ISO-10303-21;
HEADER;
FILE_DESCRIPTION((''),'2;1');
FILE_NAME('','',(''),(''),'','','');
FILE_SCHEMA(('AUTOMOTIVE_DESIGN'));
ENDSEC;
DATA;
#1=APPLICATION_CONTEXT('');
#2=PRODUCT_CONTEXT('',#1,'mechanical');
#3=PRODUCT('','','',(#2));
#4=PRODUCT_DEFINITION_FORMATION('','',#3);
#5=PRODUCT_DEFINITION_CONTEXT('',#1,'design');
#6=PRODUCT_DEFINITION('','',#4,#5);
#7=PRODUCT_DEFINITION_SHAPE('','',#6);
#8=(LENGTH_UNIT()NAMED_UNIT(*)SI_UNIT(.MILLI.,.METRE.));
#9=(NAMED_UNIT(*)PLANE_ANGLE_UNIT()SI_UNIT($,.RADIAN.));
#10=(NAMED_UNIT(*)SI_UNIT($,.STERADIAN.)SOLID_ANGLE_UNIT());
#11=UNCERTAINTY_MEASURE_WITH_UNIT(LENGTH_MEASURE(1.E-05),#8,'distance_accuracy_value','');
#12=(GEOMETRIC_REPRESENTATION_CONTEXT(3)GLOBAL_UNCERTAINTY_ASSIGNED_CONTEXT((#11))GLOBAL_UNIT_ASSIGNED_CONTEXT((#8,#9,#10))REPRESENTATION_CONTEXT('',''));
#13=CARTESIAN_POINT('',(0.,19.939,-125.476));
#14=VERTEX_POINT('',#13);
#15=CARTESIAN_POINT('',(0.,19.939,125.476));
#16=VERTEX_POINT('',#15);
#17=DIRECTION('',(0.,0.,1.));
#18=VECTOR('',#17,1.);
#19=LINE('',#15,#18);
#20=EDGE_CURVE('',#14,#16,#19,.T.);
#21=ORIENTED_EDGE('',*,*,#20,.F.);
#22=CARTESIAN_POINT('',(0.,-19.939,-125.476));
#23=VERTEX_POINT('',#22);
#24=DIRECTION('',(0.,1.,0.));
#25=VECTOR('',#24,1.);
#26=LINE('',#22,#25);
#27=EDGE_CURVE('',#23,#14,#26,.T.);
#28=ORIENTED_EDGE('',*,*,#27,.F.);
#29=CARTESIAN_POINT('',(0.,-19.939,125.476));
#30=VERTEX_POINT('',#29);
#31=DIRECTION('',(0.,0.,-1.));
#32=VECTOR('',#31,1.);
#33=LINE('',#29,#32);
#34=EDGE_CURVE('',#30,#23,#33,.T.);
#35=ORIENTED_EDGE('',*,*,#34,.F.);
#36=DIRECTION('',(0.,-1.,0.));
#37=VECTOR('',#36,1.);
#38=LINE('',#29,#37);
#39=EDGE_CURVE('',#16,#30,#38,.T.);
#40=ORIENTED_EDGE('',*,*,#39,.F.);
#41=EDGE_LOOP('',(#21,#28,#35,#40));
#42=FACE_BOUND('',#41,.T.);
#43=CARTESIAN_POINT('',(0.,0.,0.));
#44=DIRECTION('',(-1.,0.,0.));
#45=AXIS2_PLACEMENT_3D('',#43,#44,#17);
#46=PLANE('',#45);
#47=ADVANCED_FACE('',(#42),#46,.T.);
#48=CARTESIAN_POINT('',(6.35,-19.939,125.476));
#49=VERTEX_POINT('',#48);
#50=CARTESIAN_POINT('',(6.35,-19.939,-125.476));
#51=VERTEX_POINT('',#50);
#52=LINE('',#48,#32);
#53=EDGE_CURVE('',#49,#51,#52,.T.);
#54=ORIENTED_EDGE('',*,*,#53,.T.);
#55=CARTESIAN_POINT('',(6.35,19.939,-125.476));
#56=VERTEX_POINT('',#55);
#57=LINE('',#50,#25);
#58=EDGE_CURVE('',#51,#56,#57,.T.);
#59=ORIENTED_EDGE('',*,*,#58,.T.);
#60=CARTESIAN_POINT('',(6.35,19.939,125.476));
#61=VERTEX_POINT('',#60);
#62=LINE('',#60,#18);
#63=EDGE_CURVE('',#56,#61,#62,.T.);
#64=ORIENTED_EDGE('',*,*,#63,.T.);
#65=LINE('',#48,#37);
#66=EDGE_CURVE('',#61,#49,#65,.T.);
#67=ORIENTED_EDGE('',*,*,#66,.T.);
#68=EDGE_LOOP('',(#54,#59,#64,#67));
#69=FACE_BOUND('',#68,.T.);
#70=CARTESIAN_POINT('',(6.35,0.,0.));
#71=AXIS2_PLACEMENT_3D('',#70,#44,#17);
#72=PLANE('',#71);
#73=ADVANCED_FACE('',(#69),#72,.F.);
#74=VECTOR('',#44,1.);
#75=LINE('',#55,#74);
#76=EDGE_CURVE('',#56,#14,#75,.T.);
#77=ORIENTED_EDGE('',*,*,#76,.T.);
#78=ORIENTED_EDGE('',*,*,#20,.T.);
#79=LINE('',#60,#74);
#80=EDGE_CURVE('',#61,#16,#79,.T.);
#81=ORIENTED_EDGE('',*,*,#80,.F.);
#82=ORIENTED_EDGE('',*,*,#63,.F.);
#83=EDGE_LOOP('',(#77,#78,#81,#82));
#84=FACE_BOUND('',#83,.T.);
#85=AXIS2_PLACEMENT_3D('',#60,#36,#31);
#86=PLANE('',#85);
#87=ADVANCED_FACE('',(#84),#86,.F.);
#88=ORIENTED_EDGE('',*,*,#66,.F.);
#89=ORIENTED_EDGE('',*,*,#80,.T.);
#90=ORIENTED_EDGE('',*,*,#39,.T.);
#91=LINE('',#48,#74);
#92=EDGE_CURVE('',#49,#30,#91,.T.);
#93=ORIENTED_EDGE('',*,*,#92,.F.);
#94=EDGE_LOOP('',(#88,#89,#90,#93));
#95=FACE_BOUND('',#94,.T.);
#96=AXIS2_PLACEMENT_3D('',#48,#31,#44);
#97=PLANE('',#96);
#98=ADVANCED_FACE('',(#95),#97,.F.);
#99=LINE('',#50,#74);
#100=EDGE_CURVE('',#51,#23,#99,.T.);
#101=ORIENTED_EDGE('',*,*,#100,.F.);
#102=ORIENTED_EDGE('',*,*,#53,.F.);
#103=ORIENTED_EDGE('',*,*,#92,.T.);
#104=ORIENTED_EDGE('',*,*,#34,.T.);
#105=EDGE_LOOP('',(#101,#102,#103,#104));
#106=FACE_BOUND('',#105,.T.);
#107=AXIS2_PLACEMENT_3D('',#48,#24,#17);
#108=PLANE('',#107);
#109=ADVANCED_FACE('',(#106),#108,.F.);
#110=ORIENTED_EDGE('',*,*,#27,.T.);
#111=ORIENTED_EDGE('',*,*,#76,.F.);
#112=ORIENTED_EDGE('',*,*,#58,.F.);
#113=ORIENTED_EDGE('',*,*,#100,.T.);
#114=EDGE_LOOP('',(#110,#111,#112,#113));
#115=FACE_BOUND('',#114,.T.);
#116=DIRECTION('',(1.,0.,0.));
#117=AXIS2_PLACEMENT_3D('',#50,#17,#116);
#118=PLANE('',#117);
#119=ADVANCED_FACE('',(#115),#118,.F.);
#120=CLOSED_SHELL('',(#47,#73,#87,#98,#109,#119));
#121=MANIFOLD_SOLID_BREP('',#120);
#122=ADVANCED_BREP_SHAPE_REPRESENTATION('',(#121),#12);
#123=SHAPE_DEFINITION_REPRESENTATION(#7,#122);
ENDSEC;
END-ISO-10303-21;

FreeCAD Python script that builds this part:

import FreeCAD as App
import Part
import Sketcher

V = App.Vector
Q = App.Units.Quantity


def add_polygon(sketch, points):
    """Adds a closed chain of lines whose ends are joined by coincident constraints."""
    first, n = sketch.GeometryCount, len(points)
    for a, b in zip(points, points[1:] + points[:1]):
        sketch.addGeometry(Part.LineSegment(App.Vector(*a, 0), App.Vector(*b, 0)), False)
    for i in range(n):
        sketch.addConstraint(Sketcher.Constraint("Coincident", first + i, 2, first + (i + 1) % n, 1))

doc = App.newDocument("Part")
body = doc.addObject("PartDesign::Body", "Body")

sketch1 = body.newObject("Sketcher::SketchObject", "Sketch")
sketch1.AttachmentSupport = (doc.getObject("YZ_Plane"), [""])
sketch1.MapMode = "FlatFace"
add_polygon(sketch1, [(19.939, 125.476), (-19.939, 125.476), (-19.939, -125.476), (19.939, -125.476)])
sketch1.addConstraint([
    Sketcher.Constraint("Horizontal", 0),
    Sketcher.Constraint("Vertical", 1),
    Sketcher.Constraint("Horizontal", 2),
    Sketcher.Constraint("Vertical", 3),
    Sketcher.Constraint("Symmetric", 0, 2, 2, 2, -1, 1),
    Sketcher.Constraint("DistanceX", 0, 2, 0, 1, Q("1.57 in")),
    Sketcher.Constraint("DistanceY", 1, 2, 1, 1, Q("9.88 in")),
])
pad1 = body.newObject("PartDesign::Pad", "Pad")
pad1.Profile = sketch1
pad1.Length = Q("0.25 in")

doc.recompute()
